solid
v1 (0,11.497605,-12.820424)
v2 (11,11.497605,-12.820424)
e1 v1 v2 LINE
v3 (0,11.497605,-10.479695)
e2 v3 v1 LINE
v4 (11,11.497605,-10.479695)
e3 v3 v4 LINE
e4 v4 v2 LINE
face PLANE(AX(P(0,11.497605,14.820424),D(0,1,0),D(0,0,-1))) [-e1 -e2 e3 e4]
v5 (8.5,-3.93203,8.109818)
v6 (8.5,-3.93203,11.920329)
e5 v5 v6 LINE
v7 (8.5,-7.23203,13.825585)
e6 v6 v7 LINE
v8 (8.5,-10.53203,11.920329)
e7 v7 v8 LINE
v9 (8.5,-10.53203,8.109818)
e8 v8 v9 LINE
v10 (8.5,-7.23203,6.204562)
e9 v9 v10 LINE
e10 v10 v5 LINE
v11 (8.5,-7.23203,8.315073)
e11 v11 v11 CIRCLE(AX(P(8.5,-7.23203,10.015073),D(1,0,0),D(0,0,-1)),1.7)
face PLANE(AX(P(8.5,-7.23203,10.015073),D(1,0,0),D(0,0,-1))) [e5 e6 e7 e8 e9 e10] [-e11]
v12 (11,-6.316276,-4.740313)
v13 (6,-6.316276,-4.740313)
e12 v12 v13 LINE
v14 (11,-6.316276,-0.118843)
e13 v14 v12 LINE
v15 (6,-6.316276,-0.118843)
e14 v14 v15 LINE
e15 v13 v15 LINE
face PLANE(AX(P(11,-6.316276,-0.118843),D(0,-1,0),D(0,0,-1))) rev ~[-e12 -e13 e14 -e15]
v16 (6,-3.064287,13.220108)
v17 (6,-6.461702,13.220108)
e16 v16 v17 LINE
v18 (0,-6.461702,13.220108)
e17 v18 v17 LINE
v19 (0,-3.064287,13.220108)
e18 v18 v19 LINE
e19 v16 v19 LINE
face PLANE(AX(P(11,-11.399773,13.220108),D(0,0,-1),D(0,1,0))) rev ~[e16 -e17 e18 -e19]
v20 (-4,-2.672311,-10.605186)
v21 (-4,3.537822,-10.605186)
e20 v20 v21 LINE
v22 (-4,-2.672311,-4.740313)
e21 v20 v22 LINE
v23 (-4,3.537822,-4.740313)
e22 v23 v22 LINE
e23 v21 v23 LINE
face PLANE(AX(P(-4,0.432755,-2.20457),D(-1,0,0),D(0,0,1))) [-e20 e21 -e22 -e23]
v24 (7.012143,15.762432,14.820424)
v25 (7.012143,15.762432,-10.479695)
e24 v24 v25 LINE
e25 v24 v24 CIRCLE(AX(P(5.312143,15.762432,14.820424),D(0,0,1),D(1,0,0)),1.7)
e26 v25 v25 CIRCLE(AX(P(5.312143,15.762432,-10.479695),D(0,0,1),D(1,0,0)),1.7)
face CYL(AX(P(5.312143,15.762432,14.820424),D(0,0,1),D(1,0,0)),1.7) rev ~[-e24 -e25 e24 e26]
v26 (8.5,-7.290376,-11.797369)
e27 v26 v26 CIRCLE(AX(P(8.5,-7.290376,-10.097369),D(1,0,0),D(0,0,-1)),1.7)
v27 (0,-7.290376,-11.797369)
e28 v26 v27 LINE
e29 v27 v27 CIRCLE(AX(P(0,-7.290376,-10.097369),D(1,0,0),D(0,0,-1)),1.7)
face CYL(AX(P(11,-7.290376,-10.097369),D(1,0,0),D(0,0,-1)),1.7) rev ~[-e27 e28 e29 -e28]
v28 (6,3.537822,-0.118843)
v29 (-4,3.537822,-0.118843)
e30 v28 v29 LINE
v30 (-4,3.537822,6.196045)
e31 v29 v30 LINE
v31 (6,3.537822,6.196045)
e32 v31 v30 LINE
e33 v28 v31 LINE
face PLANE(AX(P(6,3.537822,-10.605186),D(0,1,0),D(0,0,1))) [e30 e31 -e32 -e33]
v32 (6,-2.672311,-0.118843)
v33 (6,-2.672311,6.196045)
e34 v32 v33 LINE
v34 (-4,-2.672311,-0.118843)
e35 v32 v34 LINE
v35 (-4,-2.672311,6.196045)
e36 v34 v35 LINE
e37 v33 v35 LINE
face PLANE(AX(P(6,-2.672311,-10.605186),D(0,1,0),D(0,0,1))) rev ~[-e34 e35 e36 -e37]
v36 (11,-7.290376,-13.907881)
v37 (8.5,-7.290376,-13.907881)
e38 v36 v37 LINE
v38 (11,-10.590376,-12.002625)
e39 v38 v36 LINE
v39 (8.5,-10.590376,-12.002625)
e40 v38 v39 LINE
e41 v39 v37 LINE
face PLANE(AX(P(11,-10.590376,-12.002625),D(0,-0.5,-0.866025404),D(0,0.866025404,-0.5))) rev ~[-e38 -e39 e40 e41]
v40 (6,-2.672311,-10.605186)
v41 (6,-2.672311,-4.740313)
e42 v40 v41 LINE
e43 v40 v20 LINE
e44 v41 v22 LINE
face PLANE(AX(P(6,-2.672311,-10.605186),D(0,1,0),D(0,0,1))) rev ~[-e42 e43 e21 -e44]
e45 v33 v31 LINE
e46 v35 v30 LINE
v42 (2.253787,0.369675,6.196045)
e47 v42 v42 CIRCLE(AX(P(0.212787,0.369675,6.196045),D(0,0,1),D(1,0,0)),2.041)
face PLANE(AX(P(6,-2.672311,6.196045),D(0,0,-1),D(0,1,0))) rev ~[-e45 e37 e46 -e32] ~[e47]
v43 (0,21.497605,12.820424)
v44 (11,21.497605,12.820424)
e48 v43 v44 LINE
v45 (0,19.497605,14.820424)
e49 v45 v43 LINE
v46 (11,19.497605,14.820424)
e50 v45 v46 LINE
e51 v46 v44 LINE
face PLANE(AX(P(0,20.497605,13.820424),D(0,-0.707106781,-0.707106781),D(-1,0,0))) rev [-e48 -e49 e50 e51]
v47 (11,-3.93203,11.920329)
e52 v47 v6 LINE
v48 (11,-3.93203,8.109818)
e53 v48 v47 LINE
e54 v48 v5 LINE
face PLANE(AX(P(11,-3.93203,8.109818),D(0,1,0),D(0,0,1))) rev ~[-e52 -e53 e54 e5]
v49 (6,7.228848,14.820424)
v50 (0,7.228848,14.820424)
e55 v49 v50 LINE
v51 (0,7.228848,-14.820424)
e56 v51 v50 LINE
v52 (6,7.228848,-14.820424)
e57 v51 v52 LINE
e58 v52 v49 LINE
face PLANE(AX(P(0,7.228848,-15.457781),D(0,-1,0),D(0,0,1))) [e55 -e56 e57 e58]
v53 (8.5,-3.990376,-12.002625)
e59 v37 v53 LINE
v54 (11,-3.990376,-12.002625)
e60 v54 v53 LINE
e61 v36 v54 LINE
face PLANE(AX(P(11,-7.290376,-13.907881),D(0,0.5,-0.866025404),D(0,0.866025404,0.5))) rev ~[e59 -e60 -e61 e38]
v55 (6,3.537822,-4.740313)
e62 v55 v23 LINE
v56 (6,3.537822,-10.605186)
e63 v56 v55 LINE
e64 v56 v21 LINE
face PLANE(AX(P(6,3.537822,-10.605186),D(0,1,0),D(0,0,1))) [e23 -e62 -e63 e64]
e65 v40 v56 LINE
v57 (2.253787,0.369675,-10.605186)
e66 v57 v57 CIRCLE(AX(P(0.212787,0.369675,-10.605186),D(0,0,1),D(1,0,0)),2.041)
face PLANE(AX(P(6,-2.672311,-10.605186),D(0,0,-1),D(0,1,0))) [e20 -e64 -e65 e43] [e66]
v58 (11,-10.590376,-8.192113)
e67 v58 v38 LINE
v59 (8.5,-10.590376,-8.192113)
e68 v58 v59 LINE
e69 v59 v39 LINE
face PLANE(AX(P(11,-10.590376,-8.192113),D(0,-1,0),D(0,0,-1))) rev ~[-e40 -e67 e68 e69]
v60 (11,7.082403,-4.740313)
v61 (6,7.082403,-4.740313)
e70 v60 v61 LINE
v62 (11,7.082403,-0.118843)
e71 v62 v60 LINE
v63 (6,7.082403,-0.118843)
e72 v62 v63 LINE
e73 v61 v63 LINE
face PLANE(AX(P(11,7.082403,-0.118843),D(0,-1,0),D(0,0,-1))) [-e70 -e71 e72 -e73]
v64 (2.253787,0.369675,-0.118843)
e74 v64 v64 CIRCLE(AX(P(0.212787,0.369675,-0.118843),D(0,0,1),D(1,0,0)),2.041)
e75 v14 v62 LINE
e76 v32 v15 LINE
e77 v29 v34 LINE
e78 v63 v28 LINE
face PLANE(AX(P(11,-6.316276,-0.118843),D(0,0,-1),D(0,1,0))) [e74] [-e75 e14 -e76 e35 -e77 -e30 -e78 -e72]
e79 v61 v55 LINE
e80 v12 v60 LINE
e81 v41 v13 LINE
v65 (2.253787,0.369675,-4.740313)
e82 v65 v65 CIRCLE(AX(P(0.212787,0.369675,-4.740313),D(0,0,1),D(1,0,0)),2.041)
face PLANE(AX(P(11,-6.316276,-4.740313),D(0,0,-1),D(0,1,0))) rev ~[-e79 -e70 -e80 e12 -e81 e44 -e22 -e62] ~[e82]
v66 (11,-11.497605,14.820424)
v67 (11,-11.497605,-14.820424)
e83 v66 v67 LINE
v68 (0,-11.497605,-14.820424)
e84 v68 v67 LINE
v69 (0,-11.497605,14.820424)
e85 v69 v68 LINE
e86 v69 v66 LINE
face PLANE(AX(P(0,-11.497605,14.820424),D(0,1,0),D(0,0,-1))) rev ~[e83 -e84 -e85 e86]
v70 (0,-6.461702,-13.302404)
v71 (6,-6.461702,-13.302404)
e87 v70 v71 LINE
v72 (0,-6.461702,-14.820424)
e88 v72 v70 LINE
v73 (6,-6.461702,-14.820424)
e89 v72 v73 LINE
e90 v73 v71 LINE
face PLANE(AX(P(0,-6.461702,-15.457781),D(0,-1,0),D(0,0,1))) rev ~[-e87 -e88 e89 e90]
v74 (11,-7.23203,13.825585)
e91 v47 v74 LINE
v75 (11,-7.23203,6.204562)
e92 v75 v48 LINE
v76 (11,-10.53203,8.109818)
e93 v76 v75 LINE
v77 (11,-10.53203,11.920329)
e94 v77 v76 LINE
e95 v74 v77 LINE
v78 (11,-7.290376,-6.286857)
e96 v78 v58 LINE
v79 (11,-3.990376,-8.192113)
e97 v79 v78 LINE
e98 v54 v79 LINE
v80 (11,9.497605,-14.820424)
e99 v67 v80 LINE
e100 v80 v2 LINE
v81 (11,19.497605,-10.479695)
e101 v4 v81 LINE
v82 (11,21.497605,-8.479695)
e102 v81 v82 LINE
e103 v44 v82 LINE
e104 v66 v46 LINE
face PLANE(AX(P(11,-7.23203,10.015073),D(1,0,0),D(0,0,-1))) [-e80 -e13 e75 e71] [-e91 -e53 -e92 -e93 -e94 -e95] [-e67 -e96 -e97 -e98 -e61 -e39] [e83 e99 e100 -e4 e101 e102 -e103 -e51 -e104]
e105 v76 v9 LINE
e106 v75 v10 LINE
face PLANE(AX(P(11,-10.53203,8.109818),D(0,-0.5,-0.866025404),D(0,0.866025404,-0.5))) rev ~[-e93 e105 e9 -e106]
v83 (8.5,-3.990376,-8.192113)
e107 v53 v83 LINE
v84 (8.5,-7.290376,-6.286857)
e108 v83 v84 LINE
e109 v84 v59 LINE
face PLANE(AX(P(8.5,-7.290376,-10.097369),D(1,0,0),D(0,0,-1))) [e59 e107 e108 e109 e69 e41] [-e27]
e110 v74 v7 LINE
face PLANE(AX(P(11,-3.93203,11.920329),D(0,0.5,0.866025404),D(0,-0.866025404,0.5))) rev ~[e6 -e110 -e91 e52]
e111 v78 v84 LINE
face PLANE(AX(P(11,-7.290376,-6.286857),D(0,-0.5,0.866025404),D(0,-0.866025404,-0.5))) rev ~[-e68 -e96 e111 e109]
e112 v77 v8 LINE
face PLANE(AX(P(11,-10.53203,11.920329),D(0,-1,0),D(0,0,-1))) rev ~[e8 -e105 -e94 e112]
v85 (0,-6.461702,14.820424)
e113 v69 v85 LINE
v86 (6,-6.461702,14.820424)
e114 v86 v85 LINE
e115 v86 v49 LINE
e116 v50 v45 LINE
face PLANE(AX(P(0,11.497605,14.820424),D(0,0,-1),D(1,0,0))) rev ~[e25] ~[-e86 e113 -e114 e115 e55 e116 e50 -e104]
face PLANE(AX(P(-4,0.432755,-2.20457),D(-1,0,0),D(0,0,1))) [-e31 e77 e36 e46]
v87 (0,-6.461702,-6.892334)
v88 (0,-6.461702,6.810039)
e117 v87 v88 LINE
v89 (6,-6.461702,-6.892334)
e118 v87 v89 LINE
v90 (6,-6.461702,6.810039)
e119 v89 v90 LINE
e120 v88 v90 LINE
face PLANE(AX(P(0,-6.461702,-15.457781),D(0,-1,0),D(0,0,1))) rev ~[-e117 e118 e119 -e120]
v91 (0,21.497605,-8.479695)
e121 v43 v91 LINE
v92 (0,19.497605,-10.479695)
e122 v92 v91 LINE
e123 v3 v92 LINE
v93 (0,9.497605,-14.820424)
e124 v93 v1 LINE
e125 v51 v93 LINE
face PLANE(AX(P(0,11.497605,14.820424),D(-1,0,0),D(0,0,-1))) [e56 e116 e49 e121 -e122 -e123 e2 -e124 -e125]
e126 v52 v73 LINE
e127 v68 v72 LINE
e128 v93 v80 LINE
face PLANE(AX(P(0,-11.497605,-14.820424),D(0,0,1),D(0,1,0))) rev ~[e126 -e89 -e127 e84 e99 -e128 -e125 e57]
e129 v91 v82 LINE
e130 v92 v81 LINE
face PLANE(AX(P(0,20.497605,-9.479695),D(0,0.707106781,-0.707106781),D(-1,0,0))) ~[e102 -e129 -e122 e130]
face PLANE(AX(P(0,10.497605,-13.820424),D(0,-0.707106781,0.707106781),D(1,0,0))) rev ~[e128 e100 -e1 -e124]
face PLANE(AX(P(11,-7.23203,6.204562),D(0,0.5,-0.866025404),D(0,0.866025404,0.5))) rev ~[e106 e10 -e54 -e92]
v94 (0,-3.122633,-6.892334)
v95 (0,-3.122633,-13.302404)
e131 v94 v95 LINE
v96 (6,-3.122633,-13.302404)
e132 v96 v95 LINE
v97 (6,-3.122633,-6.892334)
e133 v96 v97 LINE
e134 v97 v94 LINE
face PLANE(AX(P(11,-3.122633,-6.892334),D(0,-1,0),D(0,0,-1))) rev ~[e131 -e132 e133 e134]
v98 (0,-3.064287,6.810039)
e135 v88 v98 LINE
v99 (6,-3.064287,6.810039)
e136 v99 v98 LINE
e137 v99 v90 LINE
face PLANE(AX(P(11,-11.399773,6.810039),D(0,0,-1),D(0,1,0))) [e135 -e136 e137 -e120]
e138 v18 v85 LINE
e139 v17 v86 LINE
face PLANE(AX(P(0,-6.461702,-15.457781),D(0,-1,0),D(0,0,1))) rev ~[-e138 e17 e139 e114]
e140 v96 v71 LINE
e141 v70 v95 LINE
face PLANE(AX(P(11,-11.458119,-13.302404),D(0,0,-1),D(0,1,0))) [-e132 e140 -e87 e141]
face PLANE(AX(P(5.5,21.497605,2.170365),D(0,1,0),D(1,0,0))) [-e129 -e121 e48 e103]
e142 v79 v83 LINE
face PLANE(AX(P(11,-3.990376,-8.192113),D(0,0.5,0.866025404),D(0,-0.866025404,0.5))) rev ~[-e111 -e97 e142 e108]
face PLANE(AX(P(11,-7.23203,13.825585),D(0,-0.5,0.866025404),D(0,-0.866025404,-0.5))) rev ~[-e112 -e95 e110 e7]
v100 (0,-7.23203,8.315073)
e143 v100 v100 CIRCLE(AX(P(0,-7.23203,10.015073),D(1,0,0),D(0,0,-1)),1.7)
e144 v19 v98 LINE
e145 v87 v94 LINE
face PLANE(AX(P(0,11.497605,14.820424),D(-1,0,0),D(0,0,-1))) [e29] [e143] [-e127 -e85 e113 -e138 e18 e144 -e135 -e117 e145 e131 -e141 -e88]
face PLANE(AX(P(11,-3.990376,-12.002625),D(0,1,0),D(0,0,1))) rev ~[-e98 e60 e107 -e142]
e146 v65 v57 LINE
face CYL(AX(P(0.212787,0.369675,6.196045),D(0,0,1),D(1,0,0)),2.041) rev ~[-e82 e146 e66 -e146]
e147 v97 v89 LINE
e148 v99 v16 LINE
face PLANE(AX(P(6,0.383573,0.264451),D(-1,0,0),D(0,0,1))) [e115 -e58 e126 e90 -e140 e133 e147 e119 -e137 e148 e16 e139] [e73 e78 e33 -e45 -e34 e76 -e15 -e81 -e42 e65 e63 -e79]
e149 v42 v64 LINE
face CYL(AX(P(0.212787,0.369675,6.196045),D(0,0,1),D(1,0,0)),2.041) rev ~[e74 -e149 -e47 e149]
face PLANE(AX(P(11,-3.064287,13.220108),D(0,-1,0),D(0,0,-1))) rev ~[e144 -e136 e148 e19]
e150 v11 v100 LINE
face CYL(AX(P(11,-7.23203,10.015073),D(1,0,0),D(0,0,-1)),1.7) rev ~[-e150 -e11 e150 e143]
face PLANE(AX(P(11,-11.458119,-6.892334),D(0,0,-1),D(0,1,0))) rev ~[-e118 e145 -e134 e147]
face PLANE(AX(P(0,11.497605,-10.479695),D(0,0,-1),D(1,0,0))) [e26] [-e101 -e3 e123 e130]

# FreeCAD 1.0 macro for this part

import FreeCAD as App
import Part
import Sketcher
from FreeCAD import Vector
Q = App.Units.Quantity


def edges_at(feature, points):
    """Names of the edges that pass closest to the given points."""
    edges = feature.Shape.Edges
    near = lambda p: min(range(len(edges)), key=lambda i: edges[i].distToShape(Part.Vertex(*p))[0])
    return sorted({f"Edge{near(p) + 1}" for p in points})


def add_polygon(sketch, points):
    """Adds a closed chain of lines whose ends are joined by coincident constraints."""
    first, n = sketch.GeometryCount, len(points)
    for a, b in zip(points, points[1:] + points[:1]):
        sketch.addGeometry(Part.LineSegment(App.Vector(*a, 0), App.Vector(*b, 0)), False)
    for i in range(n):
        sketch.addConstraint(Sketcher.Constraint("Coincident", first + i, 2, first + (i + 1) % n, 1))

doc = App.newDocument("Part")
body = doc.addObject("PartDesign::Body", "Body")

sketch1 = body.newObject("Sketcher::SketchObject", "Sketch")
sketch1.AttachmentSupport = (doc.getObject("YZ_Plane"), [""])
sketch1.MapMode = "FlatFace"
add_polygon(sketch1, [(11.497605, 14.820424), (-11.497605, 14.820424), (-11.497605, -14.820424), (11.497605, -14.820424)])
sketch1.addConstraint([
    Sketcher.Constraint("Horizontal", 0),
    Sketcher.Constraint("Vertical", 1),
    Sketcher.Constraint("Horizontal", 2),
    Sketcher.Constraint("Vertical", 3),
    Sketcher.Constraint("Symmetric", 0, 2, 2, 2, -1, 1),
    Sketcher.Constraint("DistanceX", 0, 2, 0, 1, Q("22.99521 mm")),
    Sketcher.Constraint("DistanceY", 1, 2, 1, 1, Q("29.640849 mm")),
])
pad1 = body.newObject("PartDesign::Pad", "Pad")
pad1.Profile = sketch1
pad1.Length = 11

sketch2 = body.newObject("Sketcher::SketchObject", "Sketch001")
sketch2.AttachmentSupport = (doc.getObject("XZ_Plane"), [""])
sketch2.MapMode = "FlatFace"
sketch2.AttachmentOffset = App.Placement(Vector(0, 0, -11.497605), App.Rotation())
add_polygon(sketch2, [(0, -10.479695), (0, 14.820424), (11, 14.820424), (11, -10.479695)])
sketch2.addConstraint([
    Sketcher.Constraint("Vertical", 0),
    Sketcher.Constraint("Horizontal", 1),
    Sketcher.Constraint("Vertical", 2),
    Sketcher.Constraint("Horizontal", 3),
    Sketcher.Constraint("PointOnObject", 0, 2, -2),
    Sketcher.Constraint("DistanceX", 1, 1, 1, 2, Q("11 mm")),
    Sketcher.Constraint("DistanceY", 0, 1, 0, 2, Q("25.300119 mm")),
    Sketcher.Constraint("DistanceY", -1, 1, 0, 2, Q("14.820424 mm")),
])
pad2 = body.newObject("PartDesign::Pad", "Pad001")
pad2.Profile = sketch2
pad2.Length = 10
pad2.Reversed = True
doc.recompute()

chamfer = body.newObject("PartDesign::Chamfer", "Chamfer")
chamfer.Base = (pad2, edges_at(pad2, [(5.5, 21.498, -10.48), (5.5, 21.498, 14.82), (5.5, 11.498, -14.82)]))
chamfer.Size = 2

sketch3 = body.newObject("Sketcher::SketchObject", "Sketch002")
sketch3.AttachmentSupport = (doc.getObject("YZ_Plane"), [""])
sketch3.MapMode = "FlatFace"
add_polygon(sketch3, [(7.228848, -15.457781), (-6.461702, -15.457781), (-6.461702, 15.986683), (7.228848, 15.986683)])
sketch3.addConstraint([
    Sketcher.Constraint("Horizontal", 0),
    Sketcher.Constraint("Vertical", 1),
    Sketcher.Constraint("Horizontal", 2),
    Sketcher.Constraint("Vertical", 3),
    Sketcher.Constraint("DistanceX", 0, 2, 0, 1, Q("13.69055 mm")),
    Sketcher.Constraint("DistanceY", 1, 1, 1, 2, Q("31.444464 mm")),
    Sketcher.Constraint("DistanceY", 0, 2, -1, 1, Q("15.457781 mm")),
    Sketcher.Constraint("DistanceX", 0, 2, -1, 1, Q("6.461702 mm")),
])
pocket1 = body.newObject("PartDesign::Pocket", "Pocket")
pocket1.Profile = sketch3
pocket1.Length = 6
pocket1.Reversed = True

sketch4 = body.newObject("Sketcher::SketchObject", "Sketch003")
sketch4.AttachmentSupport = (doc.getObject("YZ_Plane"), [""])
sketch4.MapMode = "FlatFace"
sketch4.AttachmentOffset = App.Placement(Vector(0, 0, 6), App.Rotation())
add_polygon(sketch4, [(3.537822, -10.605186), (-2.672311, -10.605186), (-2.672311, 6.196045), (3.537822, 6.196045)])
sketch4.addConstraint([
    Sketcher.Constraint("Horizontal", 0),
    Sketcher.Constraint("Vertical", 1),
    Sketcher.Constraint("Horizontal", 2),
    Sketcher.Constraint("Vertical", 3),
    Sketcher.Constraint("DistanceY", 1, 1, 1, 2, Q("16.80123 mm")),
    Sketcher.Constraint("DistanceX", 0, 2, 0, 1, Q("6.210132 mm")),
    Sketcher.Constraint("DistanceX", 0, 2, -1, 1, Q("2.672311 mm")),
    Sketcher.Constraint("DistanceY", 0, 2, -1, 1, Q("10.605186 mm")),
])
pad3 = body.newObject("PartDesign::Pad", "Pad002")
pad3.Profile = sketch4
pad3.Length = 10
pad3.Reversed = True

sketch5 = body.newObject("Sketcher::SketchObject", "Sketch004")
sketch5.AttachmentSupport = (doc.getObject("XY_Plane"), [""])
sketch5.MapMode = "FlatFace"
sketch5.AttachmentOffset = App.Placement(Vector(0, 0, 6.196045), App.Rotation())
sketch5.addGeometry(Part.Circle(Vector(0.212787, 0.369675, 0), Vector(0, 0, 1), 2.041), False)
sketch5.addConstraint([
    Sketcher.Constraint("Diameter", 0, Q("4.081999 mm")),
    Sketcher.Constraint("DistanceX", -1, 1, 0, 3, Q("0.212787 mm")),
    Sketcher.Constraint("DistanceY", -1, 1, 0, 3, Q("0.369675 mm")),
])
pocket2 = body.newObject("PartDesign::Pocket", "Pocket001")
pocket2.Profile = sketch5
pocket2.Type = "ThroughAll"

sketch6 = body.newObject("Sketcher::SketchObject", "Sketch005")
sketch6.AttachmentSupport = (doc.getObject("YZ_Plane"), [""])
sketch6.MapMode = "FlatFace"
sketch6.AttachmentOffset = App.Placement(Vector(0, 0, 11), App.Rotation())
add_polygon(sketch6, [(7.082403, -0.118843), (-6.316276, -0.118843), (-6.316276, -4.740313), (7.082403, -4.740313)])
sketch6.addConstraint([
    Sketcher.Constraint("Horizontal", 0),
    Sketcher.Constraint("Vertical", 1),
    Sketcher.Constraint("Horizontal", 2),
    Sketcher.Constraint("Vertical", 3),
    Sketcher.Constraint("DistanceX", 0, 2, 0, 1, Q("13.39868 mm")),
    Sketcher.Constraint("DistanceY", 1, 2, 1, 1, Q("4.62147 mm")),
    Sketcher.Constraint("DistanceX", 0, 2, -1, 1, Q("6.316276 mm")),
    Sketcher.Constraint("DistanceY", 0, 2, -1, 1, Q("0.118843 mm")),
])
pocket3 = body.newObject("PartDesign::Pocket", "Pocket002")
pocket3.Profile = sketch6
pocket3.Type = "ThroughAll"

sketch7 = body.newObject("Sketcher::SketchObject", "Sketch006")
sketch7.AttachmentSupport = (doc.getObject("XY_Plane"), [""])
sketch7.MapMode = "FlatFace"
sketch7.AttachmentOffset = App.Placement(Vector(0, 0, 14.820424), App.Rotation())
sketch7.addGeometry(Part.Circle(Vector(5.312143, 15.762432, 0), Vector(0, 0, 1), 1.7), False)
sketch7.addConstraint([
    Sketcher.Constraint("Diameter", 0, Q("3.4 mm")),
    Sketcher.Constraint("DistanceX", -1, 1, 0, 3, Q("5.312143 mm")),
    Sketcher.Constraint("DistanceY", -1, 1, 0, 3, Q("15.762432 mm")),
])
pocket4 = body.newObject("PartDesign::Pocket", "Pocket003")
pocket4.Profile = sketch7
pocket4.Length = 27

sketch8 = body.newObject("Sketcher::SketchObject", "Sketch007")
sketch8.AttachmentSupport = (doc.getObject("YZ_Plane"), [""])
sketch8.MapMode = "FlatFace"
sketch8.AttachmentOffset = App.Placement(Vector(0, 0, 11), App.Rotation())
add_polygon(sketch8, [(-3.122633, -6.892334), (-11.458119, -6.892334), (-11.458119, -13.302404), (-3.122633, -13.302404)])
sketch8.addConstraint([
    Sketcher.Constraint("Horizontal", 0),
    Sketcher.Constraint("Vertical", 1),
    Sketcher.Constraint("Horizontal", 2),
    Sketcher.Constraint("Vertical", 3),
    Sketcher.Constraint("DistanceY", 1, 2, 1, 1, Q("6.410069 mm")),
    Sketcher.Constraint("DistanceX", 0, 2, 0, 1, Q("8.335486 mm")),
    Sketcher.Constraint("DistanceX", 0, 2, -1, 1, Q("11.458119 mm")),
    Sketcher.Constraint("DistanceY", 0, 2, -1, 1, Q("6.892334 mm")),
])
pad4 = body.newObject("PartDesign::Pad", "Pad003")
pad4.Profile = sketch8
pad4.Length = 11
pad4.Reversed = True

sketch9 = body.newObject("Sketcher::SketchObject", "Sketch008")
sketch9.AttachmentSupport = (doc.getObject("YZ_Plane"), [""])
sketch9.MapMode = "FlatFace"
sketch9.AttachmentOffset = App.Placement(Vector(0, 0, 11), App.Rotation())
add_polygon(sketch9, [(-3.064287, 13.220108), (-11.399773, 13.220108), (-11.399773, 6.810039), (-3.064287, 6.810039)])
sketch9.addConstraint([
    Sketcher.Constraint("Horizontal", 0),
    Sketcher.Constraint("Vertical", 1),
    Sketcher.Constraint("Horizontal", 2),
    Sketcher.Constraint("Vertical", 3),
    Sketcher.Constraint("DistanceY", 1, 2, 1, 1, Q("6.410069 mm")),
    Sketcher.Constraint("DistanceX", 0, 2, 0, 1, Q("8.335486 mm")),
    Sketcher.Constraint("DistanceY", -1, 1, 0, 2, Q("13.220108 mm")),
    Sketcher.Constraint("DistanceX", 0, 2, -1, 1, Q("11.399773 mm")),
])
pad5 = body.newObject("PartDesign::Pad", "Pad004")
pad5.Profile = sketch9
pad5.Length = 11
pad5.Reversed = True

sketch10 = body.newObject("Sketcher::SketchObject", "Sketch009")
sketch10.AttachmentSupport = (doc.getObject("YZ_Plane"), [""])
sketch10.MapMode = "FlatFace"
sketch10.AttachmentOffset = App.Placement(Vector(0, 0, 11), App.Rotation())
add_polygon(sketch10, [(-10.53203, 8.109818), (-7.23203, 6.204562), (-3.93203, 8.109818), (-3.93203, 11.920329), (-7.23203, 13.825585), (-10.53203, 11.920329)])
sketch10.addConstraint([
    Sketcher.Constraint("Vertical", 2),
    Sketcher.Constraint("Vertical", 5),
    Sketcher.Constraint("Parallel", 0, 3),
    Sketcher.Constraint("Parallel", 1, 4),
    Sketcher.Constraint("Horizontal", 2, 2, 4, 2),
    Sketcher.Constraint("Horizontal", 1, 2, 5, 2),
    Sketcher.Constraint("Vertical", 0, 2, 3, 2),
    Sketcher.Constraint("Angle", 0, Q("-30 deg")),
    Sketcher.Constraint("DistanceX", 0, 2, 1, 2, Q("3.3 mm")),
    Sketcher.Constraint("DistanceY", 2, 1, 2, 2, Q("3.810512 mm")),
    Sketcher.Constraint("DistanceX", 0, 2, -1, 1, Q("7.23203 mm")),
    Sketcher.Constraint("DistanceY", -1, 1, 0, 2, Q("6.204562 mm")),
])
pocket5 = body.newObject("PartDesign::Pocket", "Pocket004")
pocket5.Profile = sketch10
pocket5.Length = 2.5

sketch11 = body.newObject("Sketcher::SketchObject", "Sketch010")
sketch11.AttachmentSupport = (doc.getObject("YZ_Plane"), [""])
sketch11.MapMode = "FlatFace"
sketch11.AttachmentOffset = App.Placement(Vector(0, 0, 11), App.Rotation())
sketch11.addGeometry(Part.Circle(Vector(-7.23203, 10.015073, 0), Vector(0, 0, 1), 1.7), False)
sketch11.addConstraint([
    Sketcher.Constraint("Diameter", 0, Q("3.4 mm")),
    Sketcher.Constraint("DistanceX", 0, 3, -1, 1, Q("7.23203 mm")),
    Sketcher.Constraint("DistanceY", -1, 1, 0, 3, Q("10.015073 mm")),
])
pocket6 = body.newObject("PartDesign::Pocket", "Pocket005")
pocket6.Profile = sketch11
pocket6.Type = "ThroughAll"

sketch12 = body.newObject("Sketcher::SketchObject", "Sketch011")
sketch12.AttachmentSupport = (doc.getObject("YZ_Plane"), [""])
sketch12.MapMode = "FlatFace"
sketch12.AttachmentOffset = App.Placement(Vector(0, 0, 11), App.Rotation())
add_polygon(sketch12, [(-10.590376, -12.002625), (-7.290376, -13.907881), (-3.990376, -12.002625), (-3.990376, -8.192113), (-7.290376, -6.286857), (-10.590376, -8.192113)])
sketch12.addConstraint([
    Sketcher.Constraint("Vertical", 2),
    Sketcher.Constraint("Vertical", 5),
    Sketcher.Constraint("Parallel", 0, 3),
    Sketcher.Constraint("Parallel", 1, 4),
    Sketcher.Constraint("Horizontal", 2, 2, 4, 2),
    Sketcher.Constraint("Horizontal", 1, 2, 5, 2),
    Sketcher.Constraint("Vertical", 0, 2, 3, 2),
    Sketcher.Constraint("Angle", 0, Q("-30 deg")),
    Sketcher.Constraint("DistanceX", 0, 2, 1, 2, Q("3.3 mm")),
    Sketcher.Constraint("DistanceY", 2, 1, 2, 2, Q("3.810512 mm")),
    Sketcher.Constraint("DistanceY", 0, 2, -1, 1, Q("13.907881 mm")),
    Sketcher.Constraint("DistanceX", 0, 2, -1, 1, Q("7.290376 mm")),
])
pocket7 = body.newObject("PartDesign::Pocket", "Pocket006")
pocket7.Profile = sketch12
pocket7.Length = 2.5

sketch13 = body.newObject("Sketcher::SketchObject", "Sketch012")
sketch13.AttachmentSupport = (doc.getObject("YZ_Plane"), [""])
sketch13.MapMode = "FlatFace"
sketch13.AttachmentOffset = App.Placement(Vector(0, 0, 11), App.Rotation())
sketch13.addGeometry(Part.Circle(Vector(-7.290376, -10.097369, 0), Vector(0, 0, 1), 1.7), False)
sketch13.addConstraint([
    Sketcher.Constraint("Diameter", 0, Q("3.4 mm")),
    Sketcher.Constraint("DistanceY", 0, 3, -1, 1, Q("10.097369 mm")),
    Sketcher.Constraint("DistanceX", 0, 3, -1, 1, Q("7.290376 mm")),
])
pocket8 = body.newObject("PartDesign::Pocket", "Pocket007")
pocket8.Profile = sketch13
pocket8.Type = "ThroughAll"

doc.recompute()
